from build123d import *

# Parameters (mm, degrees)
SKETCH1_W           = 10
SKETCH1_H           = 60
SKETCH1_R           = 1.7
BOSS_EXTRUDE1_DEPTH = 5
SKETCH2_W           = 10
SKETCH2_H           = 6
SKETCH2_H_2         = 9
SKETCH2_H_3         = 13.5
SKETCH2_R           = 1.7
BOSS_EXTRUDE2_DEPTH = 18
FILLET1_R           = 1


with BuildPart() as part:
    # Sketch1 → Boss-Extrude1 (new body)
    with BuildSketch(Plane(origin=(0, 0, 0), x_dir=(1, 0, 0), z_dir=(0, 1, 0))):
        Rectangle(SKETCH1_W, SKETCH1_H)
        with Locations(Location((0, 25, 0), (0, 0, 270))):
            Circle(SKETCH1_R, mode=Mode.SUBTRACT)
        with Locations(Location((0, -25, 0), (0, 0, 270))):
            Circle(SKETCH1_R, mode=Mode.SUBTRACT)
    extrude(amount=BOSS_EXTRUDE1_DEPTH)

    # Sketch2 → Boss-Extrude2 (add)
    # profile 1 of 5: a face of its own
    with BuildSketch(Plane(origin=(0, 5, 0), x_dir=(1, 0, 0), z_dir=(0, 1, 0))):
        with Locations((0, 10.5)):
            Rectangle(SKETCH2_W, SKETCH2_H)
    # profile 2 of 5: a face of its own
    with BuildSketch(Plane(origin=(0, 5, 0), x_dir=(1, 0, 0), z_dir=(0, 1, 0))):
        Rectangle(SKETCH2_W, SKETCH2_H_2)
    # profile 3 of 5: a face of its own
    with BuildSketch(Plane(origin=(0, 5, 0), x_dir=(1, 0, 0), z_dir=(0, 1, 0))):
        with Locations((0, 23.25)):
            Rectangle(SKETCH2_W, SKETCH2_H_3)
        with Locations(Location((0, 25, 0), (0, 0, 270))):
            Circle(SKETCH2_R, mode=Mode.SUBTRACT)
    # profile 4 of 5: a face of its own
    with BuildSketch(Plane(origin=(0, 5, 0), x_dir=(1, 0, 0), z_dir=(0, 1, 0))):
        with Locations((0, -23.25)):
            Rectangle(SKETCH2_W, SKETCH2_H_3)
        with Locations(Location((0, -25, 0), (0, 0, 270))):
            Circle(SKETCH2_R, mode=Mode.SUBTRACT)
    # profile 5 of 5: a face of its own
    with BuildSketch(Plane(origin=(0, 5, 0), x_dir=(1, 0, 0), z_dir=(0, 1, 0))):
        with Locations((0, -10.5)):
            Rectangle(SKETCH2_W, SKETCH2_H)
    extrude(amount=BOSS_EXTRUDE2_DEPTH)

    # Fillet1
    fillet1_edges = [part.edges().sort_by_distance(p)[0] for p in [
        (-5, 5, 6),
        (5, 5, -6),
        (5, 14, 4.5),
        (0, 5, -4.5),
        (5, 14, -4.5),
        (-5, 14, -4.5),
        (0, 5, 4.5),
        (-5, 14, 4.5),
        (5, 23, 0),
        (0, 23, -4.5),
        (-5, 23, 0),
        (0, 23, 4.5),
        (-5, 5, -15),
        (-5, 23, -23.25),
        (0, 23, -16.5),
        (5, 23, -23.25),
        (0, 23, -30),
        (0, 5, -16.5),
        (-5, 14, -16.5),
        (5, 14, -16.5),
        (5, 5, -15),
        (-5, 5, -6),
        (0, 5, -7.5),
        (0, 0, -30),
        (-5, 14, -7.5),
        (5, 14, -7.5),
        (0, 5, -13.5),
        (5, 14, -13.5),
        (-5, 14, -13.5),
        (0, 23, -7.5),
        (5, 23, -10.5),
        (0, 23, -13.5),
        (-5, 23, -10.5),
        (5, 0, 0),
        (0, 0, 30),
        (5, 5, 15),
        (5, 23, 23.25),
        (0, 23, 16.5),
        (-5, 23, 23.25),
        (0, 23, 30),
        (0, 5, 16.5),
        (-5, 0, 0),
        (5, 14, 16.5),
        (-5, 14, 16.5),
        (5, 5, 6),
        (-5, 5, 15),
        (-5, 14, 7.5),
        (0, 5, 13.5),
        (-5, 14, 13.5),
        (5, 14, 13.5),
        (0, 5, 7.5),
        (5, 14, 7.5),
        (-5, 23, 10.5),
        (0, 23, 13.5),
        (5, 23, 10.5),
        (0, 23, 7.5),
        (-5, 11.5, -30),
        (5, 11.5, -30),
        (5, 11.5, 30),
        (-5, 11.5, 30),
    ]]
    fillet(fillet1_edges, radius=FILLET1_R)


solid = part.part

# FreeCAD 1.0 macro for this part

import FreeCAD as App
import Part
import Sketcher

V = App.Vector


def edges_at(feature, points):
    """Names of the edges that pass closest to the given points."""
    edges = feature.Shape.Edges
    near = lambda p: min(range(len(edges)), key=lambda i: edges[i].distToShape(Part.Vertex(*p))[0])
    return sorted({f"Edge{near(p) + 1}" for p in points})

doc = App.newDocument("Part")
body = doc.addObject("PartDesign::Body", "Body")

sketch1 = body.newObject("Sketcher::SketchObject", "Sketch")
sketch1.AttachmentSupport = (doc.getObject("XZ_Plane"), [""])
sketch1.MapMode = "FlatFace"
sketch1.addGeometry([
    Part.LineSegment(V(-5, -30, 0), V(-5, 30, 0)),
    Part.LineSegment(V(-5, 30, 0), V(5, 30, 0)),
    Part.LineSegment(V(5, 30, 0), V(5, -30, 0)),
    Part.LineSegment(V(5, -30, 0), V(-5, -30, 0)),
    Part.Circle(V(0, 25, 0), V(0, 0, 1), 1.7),
    Part.Circle(V(0, -25, 0), V(0, 0, 1), 1.7),
], False)
sketch1.addConstraint([
    Sketcher.Constraint("Coincident", 0, 2, 1, 1),
    Sketcher.Constraint("Coincident", 1, 2, 2, 1),
    Sketcher.Constraint("Coincident", 2, 2, 3, 1),
    Sketcher.Constraint("Coincident", 3, 2, 0, 1),
    Sketcher.Constraint("Vertical", 0),
    Sketcher.Constraint("Horizontal", 1),
    Sketcher.Constraint("Vertical", 2),
    Sketcher.Constraint("Horizontal", 3),
    Sketcher.Constraint("Equal", 4, 5),
    Sketcher.Constraint("Symmetric", 4, 3, 5, 3, -1, 1),
    Sketcher.Constraint("Symmetric", 0, 2, 2, 2, -1, 1),
    Sketcher.Constraint("PointOnObject", 4, 3, -2),
    Sketcher.Constraint("Diameter", 4, 3.4),
    Sketcher.Constraint("DistanceX", 1, 1, 1, 2, 10.0),
    Sketcher.Constraint("DistanceY", 0, 1, 0, 2, 60.0),
    Sketcher.Constraint("DistanceY", -1, 1, 4, 3, 25.0),
])
pad1 = body.newObject("PartDesign::Pad", "Pad")
pad1.Profile = sketch1
pad1.Length = 5
pad1.Reversed = True

sketch2 = body.newObject("Sketcher::SketchObject", "Sketch001")
sketch2.AttachmentSupport = (doc.getObject("XZ_Plane"), [""])
sketch2.MapMode = "FlatFace"
sketch2.AttachmentOffset = App.Placement(V(0, 0, -5), App.Rotation())
sketch2.addGeometry([
    Part.LineSegment(V(-5, -13.5, 0), V(-5, -7.5, 0)),
    Part.LineSegment(V(-5, -7.5, 0), V(5, -7.5, 0)),
    Part.LineSegment(V(5, -7.5, 0), V(5, -13.5, 0)),
    Part.LineSegment(V(5, -13.5, 0), V(-5, -13.5, 0)),
    Part.LineSegment(V(-5, -4.5, 0), V(-5, 4.5, 0)),
    Part.LineSegment(V(-5, 4.5, 0), V(5, 4.5, 0)),
    Part.LineSegment(V(5, 4.5, 0), V(5, -4.5, 0)),
    Part.LineSegment(V(5, -4.5, 0), V(-5, -4.5, 0)),
    Part.LineSegment(V(-5, -30, 0), V(-5, -16.5, 0)),
    Part.LineSegment(V(-5, -16.5, 0), V(5, -16.5, 0)),
    Part.LineSegment(V(5, -16.5, 0), V(5, -30, 0)),
    Part.LineSegment(V(5, -30, 0), V(-5, -30, 0)),
    Part.Circle(V(0, -25, 0), V(0, 0, 1), 1.7),
    Part.LineSegment(V(-5, 16.5, 0), V(-5, 30, 0)),
    Part.LineSegment(V(-5, 30, 0), V(5, 30, 0)),
    Part.LineSegment(V(5, 30, 0), V(5, 16.5, 0)),
    Part.LineSegment(V(5, 16.5, 0), V(-5, 16.5, 0)),
    Part.Circle(V(0, 25, 0), V(0, 0, 1), 1.7),
    Part.LineSegment(V(-5, 7.5, 0), V(-5, 13.5, 0)),
    Part.LineSegment(V(-5, 13.5, 0), V(5, 13.5, 0)),
    Part.LineSegment(V(5, 13.5, 0), V(5, 7.5, 0)),
    Part.LineSegment(V(5, 7.5, 0), V(-5, 7.5, 0)),
], False)
sketch2.addConstraint([
    Sketcher.Constraint("Coincident", 0, 2, 1, 1),
    Sketcher.Constraint("Coincident", 1, 2, 2, 1),
    Sketcher.Constraint("Coincident", 2, 2, 3, 1),
    Sketcher.Constraint("Coincident", 3, 2, 0, 1),
    Sketcher.Constraint("Coincident", 4, 2, 5, 1),
    Sketcher.Constraint("Coincident", 5, 2, 6, 1),
    Sketcher.Constraint("Coincident", 6, 2, 7, 1),
    Sketcher.Constraint("Coincident", 7, 2, 4, 1),
    Sketcher.Constraint("Coincident", 8, 2, 9, 1),
    Sketcher.Constraint("Coincident", 9, 2, 10, 1),
    Sketcher.Constraint("Coincident", 10, 2, 11, 1),
    Sketcher.Constraint("Coincident", 11, 2, 8, 1),
    Sketcher.Constraint("Coincident", 13, 2, 14, 1),
    Sketcher.Constraint("Coincident", 14, 2, 15, 1),
    Sketcher.Constraint("Coincident", 15, 2, 16, 1),
    Sketcher.Constraint("Coincident", 16, 2, 13, 1),
    Sketcher.Constraint("Coincident", 18, 2, 19, 1),
    Sketcher.Constraint("Coincident", 19, 2, 20, 1),
    Sketcher.Constraint("Coincident", 20, 2, 21, 1),
    Sketcher.Constraint("Coincident", 21, 2, 18, 1),
    Sketcher.Constraint("Vertical", 0),
    Sketcher.Constraint("Horizontal", 1),
    Sketcher.Constraint("Vertical", 2),
    Sketcher.Constraint("Horizontal", 3),
    Sketcher.Constraint("Vertical", 4),
    Sketcher.Constraint("Horizontal", 5),
    Sketcher.Constraint("Vertical", 6),
    Sketcher.Constraint("Horizontal", 7),
    Sketcher.Constraint("Vertical", 8),
    Sketcher.Constraint("Horizontal", 9),
    Sketcher.Constraint("Vertical", 10),
    Sketcher.Constraint("Horizontal", 11),
    Sketcher.Constraint("Vertical", 13),
    Sketcher.Constraint("Horizontal", 14),
    Sketcher.Constraint("Vertical", 15),
    Sketcher.Constraint("Horizontal", 16),
    Sketcher.Constraint("Vertical", 18),
    Sketcher.Constraint("Horizontal", 19),
    Sketcher.Constraint("Vertical", 20),
    Sketcher.Constraint("Horizontal", 21),
    Sketcher.Constraint("Equal", 12, 17),
    Sketcher.Constraint("Symmetric", 12, 3, 17, 3, -1, 1),
    Sketcher.Constraint("Symmetric", 4, 2, 6, 2, -1, 1),
    Sketcher.Constraint("Symmetric", 10, 2, 13, 2, -1, 1),
    Sketcher.Constraint("Symmetric", 8, 2, 15, 2, -1, 1),
    Sketcher.Constraint("Symmetric", 2, 2, 18, 2, -1, 1),
    Sketcher.Constraint("Symmetric", 0, 2, 20, 2, -1, 1),
    Sketcher.Constraint("PointOnObject", 12, 3, -2),
    Sketcher.Constraint("Vertical", 3, 2, 4, 2),
    Sketcher.Constraint("Vertical", 2, 2, 5, 2),
    Sketcher.Constraint("Vertical", 7, 2, 8, 2),
    Sketcher.Constraint("Vertical", 6, 2, 9, 2),
    Sketcher.Constraint("Diameter", 12, 3.4),
    Sketcher.Constraint("DistanceX", 1, 1, 1, 2, 10.0),
    Sketcher.Constraint("DistanceY", 0, 1, 0, 2, 6.0),
    Sketcher.Constraint("DistanceY", 4, 1, 4, 2, 9.0),
    Sketcher.Constraint("DistanceY", 8, 1, 8, 2, 13.5),
    Sketcher.Constraint("DistanceY", 12, 3, -1, 1, 25.0),
    Sketcher.Constraint("DistanceY", 10, 2, -1, 1, 30.0),
    Sketcher.Constraint("DistanceY", 0, 2, 4, 2, 12.0),
])
pad2 = body.newObject("PartDesign::Pad", "Pad001")
pad2.Profile = sketch2
pad2.Length = 18
pad2.Reversed = True
doc.recompute()

fillet = body.newObject("PartDesign::Fillet", "Fillet")
fillet.Base = (pad2, edges_at(pad2, [
    (-5, 5, 6),
    (5, 5, -6),
    (5, 14, 4.5),
    (0, 5, -4.5),
    (5, 14, -4.5),
    (-5, 14, -4.5),
    (0, 5, 4.5),
    (-5, 14, 4.5),
    (5, 23, 0),
    (0, 23, -4.5),
    (-5, 23, 0),
    (0, 23, 4.5),
    (-5, 5, -15),
    (-5, 23, -23.25),
    (0, 23, -16.5),
    (5, 23, -23.25),
    (0, 23, -30),
    (0, 5, -16.5),
    (-5, 14, -16.5),
    (5, 14, -16.5),
    (5, 5, -15),
    (-5, 5, -6),
    (0, 5, -7.5),
    (0, 0, -30),
    (-5, 14, -7.5),
    (5, 14, -7.5),
    (0, 5, -13.5),
    (5, 14, -13.5),
    (-5, 14, -13.5),
    (0, 23, -7.5),
    (5, 23, -10.5),
    (0, 23, -13.5),
    (-5, 23, -10.5),
    (5, 0, 0),
    (0, 0, 30),
    (5, 5, 15),
    (5, 23, 23.25),
    (0, 23, 16.5),
    (-5, 23, 23.25),
    (0, 23, 30),
    (0, 5, 16.5),
    (-5, 0, 0),
    (5, 14, 16.5),
    (-5, 14, 16.5),
    (5, 5, 6),
    (-5, 5, 15),
    (-5, 14, 7.5),
    (0, 5, 13.5),
    (-5, 14, 13.5),
    (5, 14, 13.5),
    (0, 5, 7.5),
    (5, 14, 7.5),
    (-5, 23, 10.5),
    (0, 23, 13.5),
    (5, 23, 10.5),
    (0, 23, 7.5),
    (-5, 11.5, -30),
    (5, 11.5, -30),
    (5, 11.5, 30),
    (-5, 11.5, 30),
]))
fillet.Radius = 1

doc.recompute()
